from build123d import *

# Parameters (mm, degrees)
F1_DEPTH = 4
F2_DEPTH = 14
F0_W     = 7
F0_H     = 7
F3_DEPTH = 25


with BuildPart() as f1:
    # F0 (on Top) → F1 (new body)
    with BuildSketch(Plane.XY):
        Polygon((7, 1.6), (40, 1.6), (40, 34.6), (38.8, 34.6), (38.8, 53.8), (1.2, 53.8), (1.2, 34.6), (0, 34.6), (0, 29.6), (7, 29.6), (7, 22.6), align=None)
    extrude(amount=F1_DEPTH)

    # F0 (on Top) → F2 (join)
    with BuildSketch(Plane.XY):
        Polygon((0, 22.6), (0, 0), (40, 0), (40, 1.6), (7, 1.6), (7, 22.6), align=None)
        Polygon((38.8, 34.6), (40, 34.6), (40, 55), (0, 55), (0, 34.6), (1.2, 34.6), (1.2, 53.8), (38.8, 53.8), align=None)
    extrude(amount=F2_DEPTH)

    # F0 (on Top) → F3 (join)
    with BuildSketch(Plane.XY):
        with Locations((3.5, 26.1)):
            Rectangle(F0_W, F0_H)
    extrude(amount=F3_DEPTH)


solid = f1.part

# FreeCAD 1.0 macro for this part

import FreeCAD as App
import Part
import Sketcher

V = App.Vector
Q = App.Units.Quantity


def add_polygon(sketch, points):
    """Adds a closed chain of lines whose ends are joined by coincident constraints."""
    first, n = sketch.GeometryCount, len(points)
    for a, b in zip(points, points[1:] + points[:1]):
        sketch.addGeometry(Part.LineSegment(App.Vector(*a, 0), App.Vector(*b, 0)), False)
    for i in range(n):
        sketch.addConstraint(Sketcher.Constraint("Coincident", first + i, 2, first + (i + 1) % n, 1))

doc = App.newDocument("Part")
body = doc.addObject("PartDesign::Body", "Body")

# Sketch on XY plane
sketch1 = doc.addObject("Sketcher::SketchObject", "Sketch")
body.addObject(sketch1)
sketch1.AttachmentSupport = (doc.XY_Plane, [""])
sketch1.MapMode = "FlatFace"
add_polygon(sketch1, [(7, 1.6), (40, 1.6), (40, 34.6), (38.8, 34.6), (38.8, 53.8), (1.2, 53.8), (1.2, 34.6), (0, 34.6), (0, 29.6), (7, 29.6)])  # lines 0-9
sketch1.addConstraint(Sketcher.Constraint("Horizontal", 0))
sketch1.addConstraint(Sketcher.Constraint("Vertical", 1))
sketch1.addConstraint(Sketcher.Constraint("Horizontal", 2))
sketch1.addConstraint(Sketcher.Constraint("Vertical", 3))
sketch1.addConstraint(Sketcher.Constraint("Horizontal", 4))
sketch1.addConstraint(Sketcher.Constraint("Vertical", 5))
sketch1.addConstraint(Sketcher.Constraint("Horizontal", 6))
sketch1.addConstraint(Sketcher.Constraint("Vertical", 7))
sketch1.addConstraint(Sketcher.Constraint("Horizontal", 8))
sketch1.addConstraint(Sketcher.Constraint("Vertical", 9))
sketch1.addConstraint(Sketcher.Constraint("PointOnObject", 6, 2, -2))
sketch1.addConstraint(Sketcher.Constraint("Horizontal", 2, 2, 5, 2))
sketch1.addConstraint(Sketcher.Constraint("Equal", 2, 6))
sketch1.addConstraint(Sketcher.Constraint("Equal", 0, 1))
sketch1.addConstraint(Sketcher.Constraint("DistanceX", 0, 1, 0, 2, Q("33 mm")))
sketch1.addConstraint(Sketcher.Constraint("DistanceX", 8, 1, 8, 2, Q("7 mm")))
sketch1.addConstraint(Sketcher.Constraint("DistanceY", 7, 2, 7, 1, Q("5 mm")))
sketch1.addConstraint(Sketcher.Constraint("DistanceX", 2, 2, 2, 1, Q("1.2 mm")))
sketch1.addConstraint(Sketcher.Constraint("DistanceY", 3, 1, 3, 2, Q("19.2 mm")))
sketch1.addConstraint(Sketcher.Constraint("DistanceY", -1, 1, 0, 2, Q("1.6 mm")))
pad1 = doc.addObject("PartDesign::Pad", "Pad")
body.addObject(pad1)
pad1.Profile = sketch1
pad1.Length = 4

# Sketch on XY plane
sketch2 = doc.addObject("Sketcher::SketchObject", "Sketch001")
body.addObject(sketch2)
sketch2.AttachmentSupport = (doc.XY_Plane, [""])
sketch2.MapMode = "FlatFace"
add_polygon(sketch2, [(0, 22.6), (0, 0), (40, 0), (40, 1.6), (7, 1.6), (7, 22.6)])  # lines 0-5
add_polygon(sketch2, [(38.8, 34.6), (40, 34.6), (40, 55), (0, 55), (0, 34.6), (1.2, 34.6), (1.2, 53.8), (38.8, 53.8)])  # lines 6-13
sketch2.addConstraint(Sketcher.Constraint("Vertical", 0))
sketch2.addConstraint(Sketcher.Constraint("Horizontal", 1))
sketch2.addConstraint(Sketcher.Constraint("Vertical", 2))
sketch2.addConstraint(Sketcher.Constraint("Horizontal", 3))
sketch2.addConstraint(Sketcher.Constraint("Vertical", 4))
sketch2.addConstraint(Sketcher.Constraint("Horizontal", 5))
sketch2.addConstraint(Sketcher.Constraint("Horizontal", 6))
sketch2.addConstraint(Sketcher.Constraint("Vertical", 7))
sketch2.addConstraint(Sketcher.Constraint("Horizontal", 8))
sketch2.addConstraint(Sketcher.Constraint("Vertical", 9))
sketch2.addConstraint(Sketcher.Constraint("Horizontal", 10))
sketch2.addConstraint(Sketcher.Constraint("Vertical", 11))
sketch2.addConstraint(Sketcher.Constraint("Horizontal", 12))
sketch2.addConstraint(Sketcher.Constraint("Vertical", 13))
sketch2.addConstraint(Sketcher.Constraint("Coincident", 0, 2, -1, 1))
sketch2.addConstraint(Sketcher.Constraint("PointOnObject", 8, 2, -2))
sketch2.addConstraint(Sketcher.Constraint("Horizontal", 6, 2, 9, 2))
sketch2.addConstraint(Sketcher.Constraint("Vertical", 2, 2, 6, 2))
sketch2.addConstraint(Sketcher.Constraint("Equal", 6, 10))
sketch2.addConstraint(Sketcher.Constraint("DistanceX", 1, 1, 1, 2, Q("40 mm")))
sketch2.addConstraint(Sketcher.Constraint("DistanceX", 3, 2, 3, 1, Q("33 mm")))
sketch2.addConstraint(Sketcher.Constraint("DistanceY", 4, 1, 4, 2, Q("21 mm")))
sketch2.addConstraint(Sketcher.Constraint("DistanceX", 6, 1, 6, 2, Q("1.2 mm")))
sketch2.addConstraint(Sketcher.Constraint("DistanceY", 0, 2, 0, 1, Q("22.6 mm")))
sketch2.addConstraint(Sketcher.Constraint("DistanceY", 7, 1, 7, 2, Q("20.4 mm")))
sketch2.addConstraint(Sketcher.Constraint("DistanceY", 11, 1, 11, 2, Q("19.2 mm")))
sketch2.addConstraint(Sketcher.Constraint("DistanceY", -1, 1, 7, 2, Q("55 mm")))
pad2 = doc.addObject("PartDesign::Pad", "Pad001")
body.addObject(pad2)
pad2.Profile = sketch2
pad2.Length = 14

# Sketch on XY plane
sketch3 = doc.addObject("Sketcher::SketchObject", "Sketch002")
body.addObject(sketch3)
sketch3.AttachmentSupport = (doc.XY_Plane, [""])
sketch3.MapMode = "FlatFace"
add_polygon(sketch3, [(0, 29.6), (0, 22.6), (7, 22.6), (7, 29.6)])  # lines 0-3
sketch3.addConstraint(Sketcher.Constraint("Vertical", 0))
sketch3.addConstraint(Sketcher.Constraint("Horizontal", 1))
sketch3.addConstraint(Sketcher.Constraint("Vertical", 2))
sketch3.addConstraint(Sketcher.Constraint("Horizontal", 3))
sketch3.addConstraint(Sketcher.Constraint("PointOnObject", 0, 2, -2))
sketch3.addConstraint(Sketcher.Constraint("Equal", 3, 0))
sketch3.addConstraint(Sketcher.Constraint("DistanceX", 1, 1, 1, 2, Q("7 mm")))
sketch3.addConstraint(Sketcher.Constraint("DistanceY", -1, 1, 0, 2, Q("22.6 mm")))
pad3 = doc.addObject("PartDesign::Pad", "Pad002")
body.addObject(pad3)
pad3.Profile = sketch3
pad3.Length = 25

doc.recompute()
